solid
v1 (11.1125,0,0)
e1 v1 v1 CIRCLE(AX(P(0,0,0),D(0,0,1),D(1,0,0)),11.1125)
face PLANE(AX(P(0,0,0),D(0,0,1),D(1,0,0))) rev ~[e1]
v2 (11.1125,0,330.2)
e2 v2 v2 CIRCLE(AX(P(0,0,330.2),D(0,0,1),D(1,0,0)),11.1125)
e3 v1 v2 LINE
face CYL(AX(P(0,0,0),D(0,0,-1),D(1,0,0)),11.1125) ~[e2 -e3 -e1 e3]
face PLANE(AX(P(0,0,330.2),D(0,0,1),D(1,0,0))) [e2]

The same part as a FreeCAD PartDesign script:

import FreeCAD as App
import Part
import Sketcher
Q = App.Units.Quantity

doc = App.newDocument("Part")
params = doc.addObject("Spreadsheet::Sheet", "Params")
for row, (alias, value) in enumerate([
    ("sketch1_diameter", "0.875 in"),
    ("pad1_length", "13 in"),
], start=1):
    params.set(f"A{row}", alias)
    params.set(f"B{row}", "=" + value)
    params.setAlias(f"B{row}", alias)

body = doc.addObject("PartDesign::Body", "Body")

# Sketch on XY plane
sketch1 = doc.addObject("Sketcher::SketchObject", "Sketch")
body.addObject(sketch1)
sketch1.AttachmentSupport = (doc.XY_Plane, [""])
sketch1.MapMode = "FlatFace"
sketch1.addGeometry(Part.Circle(App.Vector(0, 0, 0), App.Vector(0, 0, 1), 11), False)
sketch1.addConstraint(Sketcher.Constraint("Coincident", 0, 3, -1, 1))
sketch1.addConstraint(Sketcher.Constraint("Diameter", 0, Q("0.875 in")))
sketch1.setExpression("Constraints[1]", "Params.sketch1_diameter")
pad1 = doc.addObject("PartDesign::Pad", "Pad")
body.addObject(pad1)
pad1.Profile = sketch1
pad1.setExpression("Length", "Params.pad1_length")

doc.recompute()
